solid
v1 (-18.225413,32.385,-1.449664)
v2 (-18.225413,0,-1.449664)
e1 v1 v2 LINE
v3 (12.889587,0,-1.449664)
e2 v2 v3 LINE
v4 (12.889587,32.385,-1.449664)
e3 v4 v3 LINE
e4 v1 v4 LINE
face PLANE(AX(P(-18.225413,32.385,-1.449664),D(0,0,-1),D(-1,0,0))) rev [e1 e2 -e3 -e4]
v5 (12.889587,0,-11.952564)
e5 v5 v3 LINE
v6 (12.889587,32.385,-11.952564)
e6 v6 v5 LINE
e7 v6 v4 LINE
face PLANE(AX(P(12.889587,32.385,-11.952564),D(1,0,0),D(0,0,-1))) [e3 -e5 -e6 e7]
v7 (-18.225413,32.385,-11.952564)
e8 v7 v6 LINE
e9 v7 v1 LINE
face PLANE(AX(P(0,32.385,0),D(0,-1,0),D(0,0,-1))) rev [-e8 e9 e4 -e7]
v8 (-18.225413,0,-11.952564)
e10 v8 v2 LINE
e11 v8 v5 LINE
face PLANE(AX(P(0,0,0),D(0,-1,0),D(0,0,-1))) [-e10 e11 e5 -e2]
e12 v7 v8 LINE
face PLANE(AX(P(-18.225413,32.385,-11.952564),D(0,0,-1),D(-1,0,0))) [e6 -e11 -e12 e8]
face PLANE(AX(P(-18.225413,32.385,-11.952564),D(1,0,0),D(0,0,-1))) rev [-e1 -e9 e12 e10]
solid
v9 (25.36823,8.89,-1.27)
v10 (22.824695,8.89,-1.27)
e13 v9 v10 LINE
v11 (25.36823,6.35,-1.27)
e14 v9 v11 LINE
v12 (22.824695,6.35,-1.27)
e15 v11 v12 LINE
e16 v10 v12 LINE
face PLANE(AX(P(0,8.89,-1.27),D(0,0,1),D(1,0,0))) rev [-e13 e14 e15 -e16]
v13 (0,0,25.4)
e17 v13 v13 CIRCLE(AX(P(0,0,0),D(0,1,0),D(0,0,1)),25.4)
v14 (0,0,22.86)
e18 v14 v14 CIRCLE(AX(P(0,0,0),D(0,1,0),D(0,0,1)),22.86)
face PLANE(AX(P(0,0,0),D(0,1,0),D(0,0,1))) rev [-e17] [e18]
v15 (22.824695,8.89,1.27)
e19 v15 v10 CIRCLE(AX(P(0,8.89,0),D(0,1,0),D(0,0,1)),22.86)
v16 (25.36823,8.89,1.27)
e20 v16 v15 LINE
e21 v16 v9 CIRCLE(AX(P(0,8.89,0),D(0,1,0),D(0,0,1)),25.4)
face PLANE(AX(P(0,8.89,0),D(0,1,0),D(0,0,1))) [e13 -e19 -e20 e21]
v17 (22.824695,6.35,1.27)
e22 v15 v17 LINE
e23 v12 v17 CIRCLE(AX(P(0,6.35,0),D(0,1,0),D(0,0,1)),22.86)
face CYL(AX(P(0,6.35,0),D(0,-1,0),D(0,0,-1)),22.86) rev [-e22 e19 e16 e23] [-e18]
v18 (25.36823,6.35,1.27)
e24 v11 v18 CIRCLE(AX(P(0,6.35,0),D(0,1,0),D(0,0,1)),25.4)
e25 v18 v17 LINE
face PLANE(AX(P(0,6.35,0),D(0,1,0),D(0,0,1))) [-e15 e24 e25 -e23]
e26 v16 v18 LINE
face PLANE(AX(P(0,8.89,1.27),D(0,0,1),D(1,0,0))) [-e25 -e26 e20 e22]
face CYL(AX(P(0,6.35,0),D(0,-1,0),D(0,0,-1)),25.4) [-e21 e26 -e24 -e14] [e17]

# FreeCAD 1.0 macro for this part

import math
import FreeCAD as App
import Part
import Sketcher

V = App.Vector
Q = App.Units.Quantity

doc = App.newDocument("Part")
params = doc.addObject("Spreadsheet::Sheet", "Params")
for row, (alias, value) in enumerate([
    ("sketch1_width", "1.225 in"),
    ("pad1_length", "1.275 in"),
    ("sketch2_diameter", "2 in"),
    ("sketch2_diameter2", "1.8 in"),
    ("pad2_length", "0.25 in"),
    ("sketch3_radius", "0.9999999 in"),
    ("sketch3_radius2", "0.9000001 in"),
    ("pad3_length", "0.1 in"),
], start=1):
    params.set(f"A{row}", alias)
    params.set(f"B{row}", "=" + value)
    params.setAlias(f"B{row}", alias)

body = doc.addObject("PartDesign::Body", "Body")

# Sketch on XZ plane
sketch1 = body.newObject("Sketcher::SketchObject", "Sketch")
sketch1.AttachmentSupport = (doc.getObject("XZ_Plane"), [""])
sketch1.MapMode = "FlatFace"
sketch1.addGeometry([
    Part.LineSegment(V(-18, -12, 0), V(-18, -1, 0)),
    Part.LineSegment(V(-18, -1, 0), V(13, -1, 0)),
    Part.LineSegment(V(13, -1, 0), V(13, -12, 0)),
    Part.LineSegment(V(13, -12, 0), V(-18, -12, 0)),
], False)
sketch1.addConstraint([
    Sketcher.Constraint("Coincident", 0, 2, 1, 1),
    Sketcher.Constraint("Coincident", 1, 2, 2, 1),
    Sketcher.Constraint("Coincident", 2, 2, 3, 1),
    Sketcher.Constraint("Coincident", 3, 2, 0, 1),
    Sketcher.Constraint("Vertical", 0),
    Sketcher.Constraint("Horizontal", 1),
    Sketcher.Constraint("Vertical", 2),
    Sketcher.Constraint("Horizontal", 3),
    Sketcher.Constraint("DistanceX", 1, 1, 1, 2, Q("1.225 in")),
    Sketcher.Constraint("DistanceY", 0, 1, 0, 2, Q("0.4135 in")),
    Sketcher.Constraint("DistanceX", 0, 2, -1, 1, Q("18.225413 mm")),
    Sketcher.Constraint("DistanceY", 0, 2, -1, 1, Q("1.449664 mm")),
])
sketch1.setExpression("Constraints[8]", "Params.sketch1_width")
pad1 = body.newObject("PartDesign::Pad", "Pad")
pad1.Profile = sketch1
pad1.setExpression("Length", "Params.pad1_length")
pad1.Reversed = True
body2 = doc.addObject("PartDesign::Body", "Body001")

# Sketch on XZ plane
sketch2 = body2.newObject("Sketcher::SketchObject", "Sketch001")
sketch2.AttachmentSupport = (doc.getObject("XZ_Plane001"), [""])
sketch2.MapMode = "FlatFace"
sketch2.addGeometry([
    Part.Circle(V(0, 0, 0), V(0, 0, 1), 25),
    Part.Circle(V(0, 0, 0), V(0, 0, 1), 23),
], False)
sketch2.addConstraint([
    Sketcher.Constraint("Coincident", 0, 3, -1, 1),
    Sketcher.Constraint("Coincident", 1, 3, -1, 1),
    Sketcher.Constraint("Diameter", 0, Q("2 in")),
    Sketcher.Constraint("Diameter", 1, Q("1.8 in")),
])
sketch2.setExpression("Constraints[2]", "Params.sketch2_diameter")
sketch2.setExpression("Constraints[3]", "Params.sketch2_diameter2")
pad2 = body2.newObject("PartDesign::Pad", "Pad001")
pad2.Profile = sketch2
pad2.setExpression("Length", "Params.pad2_length")
pad2.Reversed = True

# Sketch on XZ plane
sketch3 = body2.newObject("Sketcher::SketchObject", "Sketch002")
sketch3.AttachmentSupport = (doc.getObject("XZ_Plane001"), [""])
sketch3.MapMode = "FlatFace"
sketch3.AttachmentOffset = App.Placement(V(0, 0, -0.25 * 25.4), App.Rotation())
sketch3.addGeometry([
    Part.LineSegment(V(25.4, -1.3, 0), V(22.8, -1.3, 0)),  # 0
    Part.ArcOfCircle(Part.Circle(V(0, 0, 0), V(0, 0, 1), 22.9), math.radians(-3.18), math.radians(0)),  # 1
    Part.ArcOfCircle(Part.Circle(V(0, 0, 0), V(0, 0, 1), 22.9), math.radians(0), math.radians(3.18)),  # 2
    Part.LineSegment(V(22.8, 1.3, 0), V(25.4, 1.3, 0)),  # 3
    Part.ArcOfCircle(Part.Circle(V(0, 0, 0), V(0, 0, 1), 25.4), math.radians(0), math.radians(2.87)),  # 4
    Part.ArcOfCircle(Part.Circle(V(0, 0, 0), V(0, 0, 1), 25.4), math.radians(-2.87), math.radians(0)),  # 5
], False)
sketch3.addConstraint([
    Sketcher.Constraint("Coincident", 0, 2, 1, 1),
    Sketcher.Constraint("Tangent", 1, 2, 2, 1),
    Sketcher.Constraint("Coincident", 2, 2, 3, 1),
    Sketcher.Constraint("Coincident", 3, 2, 4, 2),
    Sketcher.Constraint("Tangent", 4, 1, 5, 2),
    Sketcher.Constraint("Coincident", 5, 1, 0, 1),
    Sketcher.Constraint("Horizontal", 0),
    Sketcher.Constraint("Horizontal", 3),
    Sketcher.Constraint("Coincident", 1, 3, -1, 1),
    Sketcher.Constraint("Coincident", 4, 3, -1, 1),
    Sketcher.Constraint("Equal", 1, 2),
    Sketcher.Constraint("Equal", 4, 5),
    Sketcher.Constraint("PointOnObject", 1, 2, -1),
    Sketcher.Constraint("PointOnObject", 4, 1, -1),
    Sketcher.Constraint("Vertical", 0, 2, 2, 2),
    Sketcher.Constraint("Radius", 4, Q("0.9999999 in")),
    Sketcher.Constraint("Radius", 1, Q("0.9000001 in")),
    Sketcher.Constraint("DistanceY", 0, 2, 2, 2, Q("0.1 in")),
])
sketch3.setExpression("Constraints[15]", "Params.sketch3_radius")
sketch3.setExpression("Constraints[16]", "Params.sketch3_radius2")
pad3 = body2.newObject("PartDesign::Pad", "Pad002")
pad3.Profile = sketch3
pad3.setExpression("Length", "Params.pad3_length")
pad3.Reversed = True

doc.recompute()
